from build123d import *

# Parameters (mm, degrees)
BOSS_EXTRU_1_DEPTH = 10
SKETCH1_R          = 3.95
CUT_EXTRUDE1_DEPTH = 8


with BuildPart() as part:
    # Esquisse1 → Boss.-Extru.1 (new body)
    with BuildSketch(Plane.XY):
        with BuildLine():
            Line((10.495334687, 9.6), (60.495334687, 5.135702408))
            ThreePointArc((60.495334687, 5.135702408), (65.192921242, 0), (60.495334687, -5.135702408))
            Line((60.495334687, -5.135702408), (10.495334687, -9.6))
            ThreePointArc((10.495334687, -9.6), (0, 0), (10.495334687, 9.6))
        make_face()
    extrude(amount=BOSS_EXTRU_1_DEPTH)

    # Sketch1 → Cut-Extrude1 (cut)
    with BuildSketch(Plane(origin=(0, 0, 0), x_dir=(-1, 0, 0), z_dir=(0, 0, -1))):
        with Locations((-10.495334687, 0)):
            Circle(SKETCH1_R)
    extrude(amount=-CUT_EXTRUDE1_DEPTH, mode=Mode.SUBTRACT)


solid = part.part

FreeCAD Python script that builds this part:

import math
import FreeCAD as App
import Part
import Sketcher

doc = App.newDocument("Part")
body = doc.addObject("PartDesign::Body", "Body")

# Sketch on XY plane
sketch1 = doc.addObject("Sketcher::SketchObject", "Sketch")
body.addObject(sketch1)
sketch1.AttachmentSupport = (doc.XY_Plane, [""])
sketch1.MapMode = "FlatFace"
sketch1.addGeometry([
    Part.LineSegment(App.Vector(60.495335, 5.135702, 0), App.Vector(10.495335, 9.6, 0)),
    Part.ArcOfCircle(Part.Circle(App.Vector(9.63819, 0, 0), App.Vector(0, 0, 1), 9.63819), math.radians(84.897821), math.radians(275.102179)),
    Part.LineSegment(App.Vector(10.495335, -9.6, 0), App.Vector(60.495335, -5.135702, 0)),
    Part.ArcOfCircle(Part.Circle(App.Vector(60.036789, 0, 0), App.Vector(0, 0, 1), 5.156133), math.radians(-84.897821), math.radians(84.897821)),
], False)
sketch1.addConstraint([
    Sketcher.Constraint("Coincident", 0, 2, 1, 1),
    Sketcher.Constraint("Coincident", 1, 2, 2, 1),
    Sketcher.Constraint("Coincident", 2, 2, 3, 1),
    Sketcher.Constraint("Coincident", 3, 2, 0, 1),
    Sketcher.Constraint("PointOnObject", 1, 3, -1),
    Sketcher.Constraint("PointOnObject", 3, 3, -1),
    Sketcher.Constraint("DistanceX", 1, 2, 2, 2, 50.0),
    Sketcher.Constraint("DistanceX", 0, 2, 2, 2, 50.0),
    Sketcher.Constraint("DistanceX", 0, 2, 3, 2, 50.0),
    Sketcher.Constraint("DistanceY", -1, 1, 0, 2, 9.6),
    Sketcher.Constraint("Radius", 1, 9.63819),
    Sketcher.Constraint("Radius", 3, 5.156133),
    Sketcher.Constraint("DistanceX", 1, 3, 3, 3, 50.398599),
    Sketcher.Constraint("DistanceX", -1, 1, 1, 3, 9.63819),
])
pad1 = doc.addObject("PartDesign::Pad", "Pad")
body.addObject(pad1)
pad1.Profile = sketch1
pad1.Length = 10

# Sketch on XY plane
sketch2 = doc.addObject("Sketcher::SketchObject", "Sketch001")
body.addObject(sketch2)
sketch2.AttachmentSupport = (doc.XY_Plane, [""])
sketch2.MapMode = "FlatFace"
sketch2.addGeometry(Part.Circle(App.Vector(10.5, 0, 0), App.Vector(0, 0, 1), 4), False)
sketch2.addConstraint([
    Sketcher.Constraint("PointOnObject", 0, 3, -1),
    Sketcher.Constraint("Diameter", 0, 7.9),
    Sketcher.Constraint("DistanceX", -1, 1, 0, 3, 10.495335),
])
pocket1 = doc.addObject("PartDesign::Pocket", "Pocket")
body.addObject(pocket1)
pocket1.Profile = sketch2
pocket1.Length = 8
pocket1.Reversed = True

doc.recompute()
